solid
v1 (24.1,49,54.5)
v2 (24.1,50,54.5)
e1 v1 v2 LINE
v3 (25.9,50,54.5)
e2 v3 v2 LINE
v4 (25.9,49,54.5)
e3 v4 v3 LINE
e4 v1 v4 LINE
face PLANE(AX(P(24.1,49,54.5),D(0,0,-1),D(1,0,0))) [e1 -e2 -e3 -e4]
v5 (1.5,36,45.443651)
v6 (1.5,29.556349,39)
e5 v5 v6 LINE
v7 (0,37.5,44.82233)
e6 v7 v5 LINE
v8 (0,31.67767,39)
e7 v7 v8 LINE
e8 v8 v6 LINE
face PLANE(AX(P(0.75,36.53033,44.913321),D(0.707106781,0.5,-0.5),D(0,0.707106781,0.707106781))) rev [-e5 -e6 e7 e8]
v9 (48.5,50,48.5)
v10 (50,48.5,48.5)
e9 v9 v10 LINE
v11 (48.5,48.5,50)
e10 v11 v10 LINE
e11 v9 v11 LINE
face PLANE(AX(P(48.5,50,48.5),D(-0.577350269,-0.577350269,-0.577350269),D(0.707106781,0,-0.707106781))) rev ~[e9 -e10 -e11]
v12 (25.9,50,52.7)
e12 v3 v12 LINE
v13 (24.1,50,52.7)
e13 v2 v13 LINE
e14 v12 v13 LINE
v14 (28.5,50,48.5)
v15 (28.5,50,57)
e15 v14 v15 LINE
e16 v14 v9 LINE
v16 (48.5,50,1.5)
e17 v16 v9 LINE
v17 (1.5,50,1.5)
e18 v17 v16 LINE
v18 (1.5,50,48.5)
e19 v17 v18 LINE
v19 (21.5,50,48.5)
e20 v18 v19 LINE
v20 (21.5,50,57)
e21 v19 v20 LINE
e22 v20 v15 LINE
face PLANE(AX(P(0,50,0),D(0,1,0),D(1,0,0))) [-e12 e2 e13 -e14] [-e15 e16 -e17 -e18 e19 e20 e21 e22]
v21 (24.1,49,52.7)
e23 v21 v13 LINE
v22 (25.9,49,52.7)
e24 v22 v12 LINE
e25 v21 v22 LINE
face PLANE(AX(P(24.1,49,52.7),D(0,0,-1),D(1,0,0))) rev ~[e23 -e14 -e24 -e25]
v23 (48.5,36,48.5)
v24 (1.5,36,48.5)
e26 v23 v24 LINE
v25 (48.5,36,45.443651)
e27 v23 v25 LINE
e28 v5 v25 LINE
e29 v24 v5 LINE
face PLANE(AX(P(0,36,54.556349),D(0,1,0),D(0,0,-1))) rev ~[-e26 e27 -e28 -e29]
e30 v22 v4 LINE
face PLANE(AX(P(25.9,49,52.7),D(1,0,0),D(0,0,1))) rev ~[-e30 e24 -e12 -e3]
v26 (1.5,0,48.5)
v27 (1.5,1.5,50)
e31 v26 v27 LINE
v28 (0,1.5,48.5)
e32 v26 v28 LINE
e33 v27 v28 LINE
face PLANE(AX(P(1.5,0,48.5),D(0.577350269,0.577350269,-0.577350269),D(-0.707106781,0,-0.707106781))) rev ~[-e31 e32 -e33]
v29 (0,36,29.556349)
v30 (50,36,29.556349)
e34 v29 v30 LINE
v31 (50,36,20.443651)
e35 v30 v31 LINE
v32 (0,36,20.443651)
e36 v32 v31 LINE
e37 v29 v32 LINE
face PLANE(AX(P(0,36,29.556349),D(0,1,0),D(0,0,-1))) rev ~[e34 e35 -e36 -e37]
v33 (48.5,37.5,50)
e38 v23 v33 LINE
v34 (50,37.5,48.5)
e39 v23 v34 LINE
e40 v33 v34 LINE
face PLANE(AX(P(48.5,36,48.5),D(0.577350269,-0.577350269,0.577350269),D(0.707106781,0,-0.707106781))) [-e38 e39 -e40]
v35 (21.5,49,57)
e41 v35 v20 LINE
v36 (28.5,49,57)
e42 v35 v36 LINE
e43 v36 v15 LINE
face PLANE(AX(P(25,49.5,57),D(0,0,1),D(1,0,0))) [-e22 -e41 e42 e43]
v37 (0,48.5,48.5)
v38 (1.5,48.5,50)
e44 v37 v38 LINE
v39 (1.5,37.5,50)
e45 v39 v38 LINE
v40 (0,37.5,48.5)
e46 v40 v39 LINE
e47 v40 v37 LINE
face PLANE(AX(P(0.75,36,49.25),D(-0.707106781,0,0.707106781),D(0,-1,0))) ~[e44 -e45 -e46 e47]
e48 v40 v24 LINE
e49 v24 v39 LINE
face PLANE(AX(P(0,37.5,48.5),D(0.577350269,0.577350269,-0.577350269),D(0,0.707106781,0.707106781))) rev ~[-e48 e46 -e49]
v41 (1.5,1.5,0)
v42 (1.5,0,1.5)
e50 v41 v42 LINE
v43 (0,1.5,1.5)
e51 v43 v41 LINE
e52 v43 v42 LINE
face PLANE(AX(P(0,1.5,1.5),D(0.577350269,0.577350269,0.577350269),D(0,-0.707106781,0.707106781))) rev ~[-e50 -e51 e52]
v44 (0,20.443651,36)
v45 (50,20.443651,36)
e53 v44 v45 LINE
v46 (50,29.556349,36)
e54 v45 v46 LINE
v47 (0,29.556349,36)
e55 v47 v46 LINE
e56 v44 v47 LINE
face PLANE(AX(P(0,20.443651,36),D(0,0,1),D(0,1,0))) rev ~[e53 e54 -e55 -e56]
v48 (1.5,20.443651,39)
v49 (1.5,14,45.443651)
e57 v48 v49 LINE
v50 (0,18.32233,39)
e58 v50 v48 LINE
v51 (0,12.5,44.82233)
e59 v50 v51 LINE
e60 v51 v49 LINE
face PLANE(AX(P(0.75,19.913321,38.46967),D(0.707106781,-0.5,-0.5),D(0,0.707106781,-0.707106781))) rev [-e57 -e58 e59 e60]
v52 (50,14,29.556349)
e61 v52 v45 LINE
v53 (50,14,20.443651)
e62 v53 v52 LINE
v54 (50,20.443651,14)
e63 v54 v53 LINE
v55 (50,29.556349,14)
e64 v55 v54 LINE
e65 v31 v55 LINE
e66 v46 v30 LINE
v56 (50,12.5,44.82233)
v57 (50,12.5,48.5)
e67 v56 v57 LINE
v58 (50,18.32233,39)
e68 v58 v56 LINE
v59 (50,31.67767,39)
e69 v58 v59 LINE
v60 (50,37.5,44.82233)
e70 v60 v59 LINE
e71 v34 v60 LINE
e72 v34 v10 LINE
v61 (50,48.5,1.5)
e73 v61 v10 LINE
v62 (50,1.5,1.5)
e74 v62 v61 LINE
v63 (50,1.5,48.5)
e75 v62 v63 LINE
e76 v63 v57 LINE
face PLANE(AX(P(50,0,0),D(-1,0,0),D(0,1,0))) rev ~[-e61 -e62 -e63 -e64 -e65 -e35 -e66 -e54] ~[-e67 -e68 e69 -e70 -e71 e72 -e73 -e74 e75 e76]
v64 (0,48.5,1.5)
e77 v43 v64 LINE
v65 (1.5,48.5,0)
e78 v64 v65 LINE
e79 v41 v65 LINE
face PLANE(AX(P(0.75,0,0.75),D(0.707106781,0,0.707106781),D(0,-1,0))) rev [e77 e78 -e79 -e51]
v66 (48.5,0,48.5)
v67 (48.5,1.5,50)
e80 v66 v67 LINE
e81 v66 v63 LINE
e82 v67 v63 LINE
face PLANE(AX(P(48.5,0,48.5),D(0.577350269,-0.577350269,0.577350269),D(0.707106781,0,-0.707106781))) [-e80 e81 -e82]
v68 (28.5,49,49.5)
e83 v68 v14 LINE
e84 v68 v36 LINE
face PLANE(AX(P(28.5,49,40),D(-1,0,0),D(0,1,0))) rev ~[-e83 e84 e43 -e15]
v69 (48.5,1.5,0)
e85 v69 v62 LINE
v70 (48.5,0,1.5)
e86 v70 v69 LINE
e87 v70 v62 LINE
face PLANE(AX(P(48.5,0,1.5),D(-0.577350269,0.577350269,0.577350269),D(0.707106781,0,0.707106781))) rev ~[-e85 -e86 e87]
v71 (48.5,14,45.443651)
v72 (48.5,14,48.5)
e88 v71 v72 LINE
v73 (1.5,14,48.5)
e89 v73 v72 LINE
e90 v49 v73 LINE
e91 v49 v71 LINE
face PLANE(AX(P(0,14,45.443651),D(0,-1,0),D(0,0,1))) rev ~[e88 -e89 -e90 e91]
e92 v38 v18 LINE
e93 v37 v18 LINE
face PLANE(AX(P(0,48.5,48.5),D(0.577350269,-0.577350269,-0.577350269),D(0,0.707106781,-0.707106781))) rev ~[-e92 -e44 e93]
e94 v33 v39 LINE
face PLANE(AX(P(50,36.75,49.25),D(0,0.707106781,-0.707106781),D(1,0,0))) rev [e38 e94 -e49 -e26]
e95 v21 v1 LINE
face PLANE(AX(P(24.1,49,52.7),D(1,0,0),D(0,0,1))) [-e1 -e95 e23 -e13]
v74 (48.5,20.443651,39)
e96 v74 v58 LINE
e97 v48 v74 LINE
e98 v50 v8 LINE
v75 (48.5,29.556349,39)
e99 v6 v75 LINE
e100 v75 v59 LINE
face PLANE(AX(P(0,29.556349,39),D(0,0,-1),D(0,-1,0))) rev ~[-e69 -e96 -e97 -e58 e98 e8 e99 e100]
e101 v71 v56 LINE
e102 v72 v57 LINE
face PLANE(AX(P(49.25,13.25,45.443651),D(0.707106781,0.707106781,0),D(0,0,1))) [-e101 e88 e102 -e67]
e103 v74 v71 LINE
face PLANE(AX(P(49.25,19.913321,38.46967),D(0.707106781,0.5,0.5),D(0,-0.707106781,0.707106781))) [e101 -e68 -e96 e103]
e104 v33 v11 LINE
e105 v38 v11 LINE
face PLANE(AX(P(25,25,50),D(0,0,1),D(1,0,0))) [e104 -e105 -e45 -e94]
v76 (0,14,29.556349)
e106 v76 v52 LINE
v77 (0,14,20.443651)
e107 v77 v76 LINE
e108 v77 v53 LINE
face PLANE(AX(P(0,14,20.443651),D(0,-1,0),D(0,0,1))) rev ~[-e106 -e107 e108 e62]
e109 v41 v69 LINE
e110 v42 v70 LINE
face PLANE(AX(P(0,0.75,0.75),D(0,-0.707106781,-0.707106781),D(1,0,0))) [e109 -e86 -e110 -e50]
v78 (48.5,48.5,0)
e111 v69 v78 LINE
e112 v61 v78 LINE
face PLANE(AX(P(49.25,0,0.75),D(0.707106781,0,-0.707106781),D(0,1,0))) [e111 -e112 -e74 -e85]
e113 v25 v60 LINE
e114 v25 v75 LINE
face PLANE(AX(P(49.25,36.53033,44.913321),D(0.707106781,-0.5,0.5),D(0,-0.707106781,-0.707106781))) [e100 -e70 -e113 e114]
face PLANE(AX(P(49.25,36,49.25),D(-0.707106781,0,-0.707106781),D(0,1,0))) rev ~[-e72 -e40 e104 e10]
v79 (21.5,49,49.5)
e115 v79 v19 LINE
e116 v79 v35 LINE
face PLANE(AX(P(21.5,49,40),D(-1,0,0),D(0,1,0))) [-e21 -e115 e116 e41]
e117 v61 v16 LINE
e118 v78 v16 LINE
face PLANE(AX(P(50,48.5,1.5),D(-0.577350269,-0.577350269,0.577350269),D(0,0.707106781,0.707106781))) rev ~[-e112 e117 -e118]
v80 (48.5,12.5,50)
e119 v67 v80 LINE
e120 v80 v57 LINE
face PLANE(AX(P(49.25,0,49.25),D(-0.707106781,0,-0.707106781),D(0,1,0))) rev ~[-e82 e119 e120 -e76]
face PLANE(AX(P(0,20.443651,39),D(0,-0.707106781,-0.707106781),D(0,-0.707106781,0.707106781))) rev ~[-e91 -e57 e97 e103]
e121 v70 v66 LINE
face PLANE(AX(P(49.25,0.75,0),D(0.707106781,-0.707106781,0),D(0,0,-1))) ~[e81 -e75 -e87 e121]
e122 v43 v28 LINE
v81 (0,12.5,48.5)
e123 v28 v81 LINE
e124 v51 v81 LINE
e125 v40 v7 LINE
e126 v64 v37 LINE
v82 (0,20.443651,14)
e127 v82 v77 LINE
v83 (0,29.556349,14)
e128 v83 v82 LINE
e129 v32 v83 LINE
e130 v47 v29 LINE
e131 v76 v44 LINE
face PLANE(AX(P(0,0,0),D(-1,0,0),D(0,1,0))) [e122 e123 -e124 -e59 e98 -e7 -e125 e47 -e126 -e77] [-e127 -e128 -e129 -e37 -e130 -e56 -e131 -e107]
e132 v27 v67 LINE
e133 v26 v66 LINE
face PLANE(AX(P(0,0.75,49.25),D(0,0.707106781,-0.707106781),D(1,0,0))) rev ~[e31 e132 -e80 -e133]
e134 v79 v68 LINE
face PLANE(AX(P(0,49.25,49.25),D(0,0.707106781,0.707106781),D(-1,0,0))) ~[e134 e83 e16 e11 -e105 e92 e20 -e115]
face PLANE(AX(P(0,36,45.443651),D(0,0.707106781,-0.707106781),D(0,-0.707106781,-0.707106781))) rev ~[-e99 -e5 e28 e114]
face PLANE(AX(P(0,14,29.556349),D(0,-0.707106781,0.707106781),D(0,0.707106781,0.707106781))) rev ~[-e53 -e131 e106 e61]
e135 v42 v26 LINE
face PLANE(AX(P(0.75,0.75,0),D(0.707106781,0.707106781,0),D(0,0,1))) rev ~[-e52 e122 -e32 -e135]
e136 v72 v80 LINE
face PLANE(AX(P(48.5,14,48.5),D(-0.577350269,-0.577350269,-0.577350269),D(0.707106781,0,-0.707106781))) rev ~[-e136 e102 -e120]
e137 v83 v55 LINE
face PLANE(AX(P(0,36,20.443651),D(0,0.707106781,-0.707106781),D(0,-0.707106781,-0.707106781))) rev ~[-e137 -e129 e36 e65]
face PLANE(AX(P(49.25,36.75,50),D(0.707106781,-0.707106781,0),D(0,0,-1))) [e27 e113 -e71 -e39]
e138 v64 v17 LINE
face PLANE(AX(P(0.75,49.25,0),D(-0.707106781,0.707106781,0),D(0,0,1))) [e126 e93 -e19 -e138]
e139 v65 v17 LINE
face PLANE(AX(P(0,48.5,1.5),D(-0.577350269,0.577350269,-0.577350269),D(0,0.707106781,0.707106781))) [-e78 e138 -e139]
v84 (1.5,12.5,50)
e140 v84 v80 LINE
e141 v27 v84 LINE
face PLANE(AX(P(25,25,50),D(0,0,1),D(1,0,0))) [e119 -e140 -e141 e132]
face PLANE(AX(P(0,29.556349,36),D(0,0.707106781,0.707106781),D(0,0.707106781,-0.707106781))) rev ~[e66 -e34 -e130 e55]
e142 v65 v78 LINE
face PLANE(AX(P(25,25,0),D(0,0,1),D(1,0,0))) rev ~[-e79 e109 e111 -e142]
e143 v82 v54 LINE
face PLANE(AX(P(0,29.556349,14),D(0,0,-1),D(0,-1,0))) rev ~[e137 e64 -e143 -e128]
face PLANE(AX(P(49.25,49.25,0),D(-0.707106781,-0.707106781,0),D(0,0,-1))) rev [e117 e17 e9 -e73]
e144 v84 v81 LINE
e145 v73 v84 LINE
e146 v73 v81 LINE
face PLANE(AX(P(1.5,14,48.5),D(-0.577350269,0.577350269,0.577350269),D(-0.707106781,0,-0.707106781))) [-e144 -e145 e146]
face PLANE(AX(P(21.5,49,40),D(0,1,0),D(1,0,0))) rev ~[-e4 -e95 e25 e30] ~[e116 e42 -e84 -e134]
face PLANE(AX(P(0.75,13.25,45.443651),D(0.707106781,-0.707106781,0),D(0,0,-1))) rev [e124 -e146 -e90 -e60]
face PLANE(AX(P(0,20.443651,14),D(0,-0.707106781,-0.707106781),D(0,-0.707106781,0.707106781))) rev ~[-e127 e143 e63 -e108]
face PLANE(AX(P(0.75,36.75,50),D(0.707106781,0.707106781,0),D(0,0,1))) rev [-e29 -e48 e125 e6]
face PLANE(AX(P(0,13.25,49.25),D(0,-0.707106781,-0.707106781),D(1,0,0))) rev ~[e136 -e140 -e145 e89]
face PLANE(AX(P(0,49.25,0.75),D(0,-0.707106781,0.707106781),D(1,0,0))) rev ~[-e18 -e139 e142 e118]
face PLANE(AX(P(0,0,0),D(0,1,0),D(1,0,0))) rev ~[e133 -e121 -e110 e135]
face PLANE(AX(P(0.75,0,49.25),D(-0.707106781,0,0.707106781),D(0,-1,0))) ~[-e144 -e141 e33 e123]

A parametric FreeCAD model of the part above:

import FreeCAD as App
import Part
import Sketcher

V = App.Vector
Q = App.Units.Quantity


def edges_at(feature, points):
    """Names of the edges that pass closest to the given points."""
    edges = feature.Shape.Edges
    near = lambda p: min(range(len(edges)), key=lambda i: edges[i].distToShape(Part.Vertex(*p))[0])
    return sorted({f"Edge{near(p) + 1}" for p in points})

doc = App.newDocument("Part")
body = doc.addObject("PartDesign::Body", "Body")

# Sketch on XY plane
sketch1 = body.newObject("Sketcher::SketchObject", "Sketch")
sketch1.AttachmentSupport = (doc.getObject("XY_Plane"), [""])
sketch1.MapMode = "FlatFace"
sketch1.addGeometry([
    Part.LineSegment(V(0, 50, 0), V(0, 0, 0)),
    Part.LineSegment(V(0, 0, 0), V(50, 0, 0)),
    Part.LineSegment(V(50, 0, 0), V(50, 50, 0)),
    Part.LineSegment(V(50, 50, 0), V(0, 50, 0)),
], False)
sketch1.addConstraint([
    Sketcher.Constraint("Coincident", 0, 2, 1, 1),
    Sketcher.Constraint("Coincident", 1, 2, 2, 1),
    Sketcher.Constraint("Coincident", 2, 2, 3, 1),
    Sketcher.Constraint("Coincident", 3, 2, 0, 1),
    Sketcher.Constraint("Vertical", 0),
    Sketcher.Constraint("Horizontal", 1),
    Sketcher.Constraint("Vertical", 2),
    Sketcher.Constraint("Horizontal", 3),
    Sketcher.Constraint("Coincident", 0, 2, -1, 1),
    Sketcher.Constraint("Equal", 3, 0),
    Sketcher.Constraint("DistanceX", 1, 1, 1, 2, Q("50 mm")),
])
pad1 = body.newObject("PartDesign::Pad", "Pad")
pad1.Profile = sketch1
pad1.Length = 50

# Sketch on YZ plane
sketch2 = body.newObject("Sketcher::SketchObject", "Sketch001")
sketch2.AttachmentSupport = (doc.getObject("YZ_Plane"), [""])
sketch2.MapMode = "FlatFace"
sketch2.addGeometry([
    Part.LineSegment(V(29.556349, 36, 0), V(36, 29.556349, 0)),  # 0
    Part.LineSegment(V(36, 29.556349, 0), V(36, 20.443651, 0)),  # 1
    Part.LineSegment(V(36, 20.443651, 0), V(29.556349, 14, 0)),  # 2
    Part.LineSegment(V(29.556349, 14, 0), V(20.443651, 14, 0)),  # 3
    Part.LineSegment(V(20.443651, 14, 0), V(14, 20.443651, 0)),  # 4
    Part.LineSegment(V(14, 20.443651, 0), V(14, 29.556349, 0)),  # 5
    Part.LineSegment(V(14, 29.556349, 0), V(20.443651, 36, 0)),  # 6
    Part.LineSegment(V(20.443651, 36, 0), V(29.556349, 36, 0)),  # 7
    Part.LineSegment(V(36, 54.556349, 0), V(36, 45.443651, 0)),  # 8
    Part.LineSegment(V(36, 45.443651, 0), V(29.556349, 39, 0)),  # 9
    Part.LineSegment(V(29.556349, 39, 0), V(20.443651, 39, 0)),  # 10
    Part.LineSegment(V(20.443651, 39, 0), V(14, 45.443651, 0)),  # 11
    Part.LineSegment(V(14, 45.443651, 0), V(14, 54.556349, 0)),  # 12
    Part.LineSegment(V(14, 54.556349, 0), V(20.443651, 61, 0)),  # 13
    Part.LineSegment(V(20.443651, 61, 0), V(29.556349, 61, 0)),  # 14
    Part.LineSegment(V(29.556349, 61, 0), V(36, 54.556349, 0)),  # 15
], False)
sketch2.addConstraint([
    Sketcher.Constraint("Coincident", 0, 2, 1, 1),
    Sketcher.Constraint("Coincident", 1, 2, 2, 1),
    Sketcher.Constraint("Coincident", 2, 2, 3, 1),
    Sketcher.Constraint("Coincident", 3, 2, 4, 1),
    Sketcher.Constraint("Coincident", 4, 2, 5, 1),
    Sketcher.Constraint("Coincident", 5, 2, 6, 1),
    Sketcher.Constraint("Coincident", 6, 2, 7, 1),
    Sketcher.Constraint("Coincident", 7, 2, 0, 1),
    Sketcher.Constraint("Coincident", 8, 2, 9, 1),
    Sketcher.Constraint("Coincident", 9, 2, 10, 1),
    Sketcher.Constraint("Coincident", 10, 2, 11, 1),
    Sketcher.Constraint("Coincident", 11, 2, 12, 1),
    Sketcher.Constraint("Coincident", 12, 2, 13, 1),
    Sketcher.Constraint("Coincident", 13, 2, 14, 1),
    Sketcher.Constraint("Coincident", 14, 2, 15, 1),
    Sketcher.Constraint("Coincident", 15, 2, 8, 1),
    Sketcher.Constraint("Vertical", 1),
    Sketcher.Constraint("Horizontal", 3),
    Sketcher.Constraint("Vertical", 5),
    Sketcher.Constraint("Horizontal", 7),
    Sketcher.Constraint("Vertical", 8),
    Sketcher.Constraint("Horizontal", 10),
    Sketcher.Constraint("Vertical", 12),
    Sketcher.Constraint("Horizontal", 14),
    Sketcher.Constraint("Perpendicular", 0, 2),
    Sketcher.Constraint("Perpendicular", 2, 4),
    Sketcher.Constraint("Perpendicular", 4, 6),
    Sketcher.Constraint("Parallel", 6, 9),
    Sketcher.Constraint("Perpendicular", 9, 11),
    Sketcher.Constraint("Perpendicular", 11, 13),
    Sketcher.Constraint("Perpendicular", 13, 15),
    Sketcher.Constraint("Horizontal", 1, 2, 4, 2),
    Sketcher.Constraint("Horizontal", 0, 2, 5, 2),
    Sketcher.Constraint("Horizontal", 8, 2, 11, 2),
    Sketcher.Constraint("Horizontal", 12, 2, 15, 2),
    Sketcher.Constraint("Vertical", 3, 2, 6, 2),
    Sketcher.Constraint("Vertical", 2, 2, 7, 2),
    Sketcher.Constraint("Vertical", 1, 2, 8, 2),
    Sketcher.Constraint("Vertical", 7, 2, 9, 2),
    Sketcher.Constraint("Vertical", 6, 2, 10, 2),
    Sketcher.Constraint("Vertical", 10, 2, 13, 2),
    Sketcher.Constraint("Equal", 14, 1),
    Sketcher.Constraint("Equal", 5, 8),
    Sketcher.Constraint("DistanceX", -1, 1, 0, 2, Q("36 mm")),
    Sketcher.Constraint("DistanceY", -1, 1, 2, 2, Q("14 mm")),
    Sketcher.Constraint("DistanceX", -1, 1, 4, 2, Q("14 mm")),
    Sketcher.Constraint("DistanceY", -1, 1, 9, 2, Q("39 mm")),
    Sketcher.Constraint("DistanceX", 3, 2, 3, 1, Q("9.112698 mm")),
])
pocket1 = body.newObject("PartDesign::Pocket", "Pocket")
pocket1.Profile = sketch2
pocket1.Type = "ThroughAll"
pocket1.Reversed = True
doc.recompute()

chamfer = body.newObject("PartDesign::Chamfer", "Chamfer")
chamfer.Base = (pocket1, edges_at(pocket1, [
    (50, 7, 50),
    (0, 7, 50),
    (50, 43, 50),
    (25, 36, 50),
    (25, 14, 50),
    (25, 50, 50),
    (50, 14, 47.722),
    (50, 36, 47.722),
    (0, 14, 47.722),
    (0, 36, 47.722),
    (0, 32.778, 42.222),
    (0, 17.222, 42.222),
    (50, 17.222, 42.222),
    (50, 32.778, 42.222),
    (0, 43, 50),
    (25, 50, 0),
    (50, 25, 0),
    (25, 0, 0),
    (0, 25, 0),
    (25, 0, 50),
    (0, 50, 25),
    (50, 50, 25),
    (50, 0, 25),
    (0, 0, 25),
]))
chamfer.Size = 1.5

# Sketch on XY plane
sketch3 = body.newObject("Sketcher::SketchObject", "Sketch002")
sketch3.AttachmentSupport = (doc.getObject("XY_Plane"), [""])
sketch3.MapMode = "FlatFace"
sketch3.AttachmentOffset = App.Placement(V(0, 0, 50), App.Rotation())
sketch3.addGeometry([
    Part.LineSegment(V(21.5, 50, 0), V(21.5, 49, 0)),
    Part.LineSegment(V(21.5, 49, 0), V(28.5, 49, 0)),
    Part.LineSegment(V(28.5, 49, 0), V(28.5, 50, 0)),
    Part.LineSegment(V(28.5, 50, 0), V(21.5, 50, 0)),
], False)
sketch3.addConstraint([
    Sketcher.Constraint("Coincident", 0, 2, 1, 1),
    Sketcher.Constraint("Coincident", 1, 2, 2, 1),
    Sketcher.Constraint("Coincident", 2, 2, 3, 1),
    Sketcher.Constraint("Coincident", 3, 2, 0, 1),
    Sketcher.Constraint("Vertical", 0),
    Sketcher.Constraint("Horizontal", 1),
    Sketcher.Constraint("Vertical", 2),
    Sketcher.Constraint("Horizontal", 3),
    Sketcher.Constraint("DistanceX", 1, 1, 1, 2, Q("7 mm")),
    Sketcher.Constraint("DistanceY", 0, 2, 0, 1, Q("1 mm")),
    Sketcher.Constraint("DistanceY", -1, 1, 0, 2, Q("49 mm")),
    Sketcher.Constraint("DistanceX", -1, 1, 0, 2, Q("21.5 mm")),
])
pad2 = body.newObject("PartDesign::Pad", "Pad001")
pad2.Profile = sketch3
pad2.Type = "TwoLengths"
pad2.Length = 7
pad2.Length2 = 10

# Sketch on XZ plane
sketch4 = body.newObject("Sketcher::SketchObject", "Sketch003")
sketch4.AttachmentSupport = (doc.getObject("XZ_Plane"), [""])
sketch4.MapMode = "FlatFace"
sketch4.AttachmentOffset = App.Placement(V(0, 0, -49), App.Rotation())
sketch4.addGeometry([
    Part.LineSegment(V(24.1, 54.5, 0), V(24.1, 52.7, 0)),
    Part.LineSegment(V(24.1, 52.7, 0), V(25.9, 52.7, 0)),
    Part.LineSegment(V(25.9, 52.7, 0), V(25.9, 54.5, 0)),
    Part.LineSegment(V(25.9, 54.5, 0), V(24.1, 54.5, 0)),
], False)
sketch4.addConstraint([
    Sketcher.Constraint("Coincident", 0, 2, 1, 1),
    Sketcher.Constraint("Coincident", 1, 2, 2, 1),
    Sketcher.Constraint("Coincident", 2, 2, 3, 1),
    Sketcher.Constraint("Coincident", 3, 2, 0, 1),
    Sketcher.Constraint("Vertical", 0),
    Sketcher.Constraint("Horizontal", 1),
    Sketcher.Constraint("Vertical", 2),
    Sketcher.Constraint("Horizontal", 3),
    Sketcher.Constraint("Equal", 3, 0),
    Sketcher.Constraint("DistanceX", 1, 1, 1, 2, Q("1.8 mm")),
    Sketcher.Constraint("DistanceX", -1, 1, 0, 2, Q("24.1 mm")),
    Sketcher.Constraint("DistanceY", -1, 1, 0, 2, Q("52.7 mm")),
])
pocket2 = body.newObject("PartDesign::Pocket", "Pocket001")
pocket2.Profile = sketch4
pocket2.Length = 7

doc.recompute()
